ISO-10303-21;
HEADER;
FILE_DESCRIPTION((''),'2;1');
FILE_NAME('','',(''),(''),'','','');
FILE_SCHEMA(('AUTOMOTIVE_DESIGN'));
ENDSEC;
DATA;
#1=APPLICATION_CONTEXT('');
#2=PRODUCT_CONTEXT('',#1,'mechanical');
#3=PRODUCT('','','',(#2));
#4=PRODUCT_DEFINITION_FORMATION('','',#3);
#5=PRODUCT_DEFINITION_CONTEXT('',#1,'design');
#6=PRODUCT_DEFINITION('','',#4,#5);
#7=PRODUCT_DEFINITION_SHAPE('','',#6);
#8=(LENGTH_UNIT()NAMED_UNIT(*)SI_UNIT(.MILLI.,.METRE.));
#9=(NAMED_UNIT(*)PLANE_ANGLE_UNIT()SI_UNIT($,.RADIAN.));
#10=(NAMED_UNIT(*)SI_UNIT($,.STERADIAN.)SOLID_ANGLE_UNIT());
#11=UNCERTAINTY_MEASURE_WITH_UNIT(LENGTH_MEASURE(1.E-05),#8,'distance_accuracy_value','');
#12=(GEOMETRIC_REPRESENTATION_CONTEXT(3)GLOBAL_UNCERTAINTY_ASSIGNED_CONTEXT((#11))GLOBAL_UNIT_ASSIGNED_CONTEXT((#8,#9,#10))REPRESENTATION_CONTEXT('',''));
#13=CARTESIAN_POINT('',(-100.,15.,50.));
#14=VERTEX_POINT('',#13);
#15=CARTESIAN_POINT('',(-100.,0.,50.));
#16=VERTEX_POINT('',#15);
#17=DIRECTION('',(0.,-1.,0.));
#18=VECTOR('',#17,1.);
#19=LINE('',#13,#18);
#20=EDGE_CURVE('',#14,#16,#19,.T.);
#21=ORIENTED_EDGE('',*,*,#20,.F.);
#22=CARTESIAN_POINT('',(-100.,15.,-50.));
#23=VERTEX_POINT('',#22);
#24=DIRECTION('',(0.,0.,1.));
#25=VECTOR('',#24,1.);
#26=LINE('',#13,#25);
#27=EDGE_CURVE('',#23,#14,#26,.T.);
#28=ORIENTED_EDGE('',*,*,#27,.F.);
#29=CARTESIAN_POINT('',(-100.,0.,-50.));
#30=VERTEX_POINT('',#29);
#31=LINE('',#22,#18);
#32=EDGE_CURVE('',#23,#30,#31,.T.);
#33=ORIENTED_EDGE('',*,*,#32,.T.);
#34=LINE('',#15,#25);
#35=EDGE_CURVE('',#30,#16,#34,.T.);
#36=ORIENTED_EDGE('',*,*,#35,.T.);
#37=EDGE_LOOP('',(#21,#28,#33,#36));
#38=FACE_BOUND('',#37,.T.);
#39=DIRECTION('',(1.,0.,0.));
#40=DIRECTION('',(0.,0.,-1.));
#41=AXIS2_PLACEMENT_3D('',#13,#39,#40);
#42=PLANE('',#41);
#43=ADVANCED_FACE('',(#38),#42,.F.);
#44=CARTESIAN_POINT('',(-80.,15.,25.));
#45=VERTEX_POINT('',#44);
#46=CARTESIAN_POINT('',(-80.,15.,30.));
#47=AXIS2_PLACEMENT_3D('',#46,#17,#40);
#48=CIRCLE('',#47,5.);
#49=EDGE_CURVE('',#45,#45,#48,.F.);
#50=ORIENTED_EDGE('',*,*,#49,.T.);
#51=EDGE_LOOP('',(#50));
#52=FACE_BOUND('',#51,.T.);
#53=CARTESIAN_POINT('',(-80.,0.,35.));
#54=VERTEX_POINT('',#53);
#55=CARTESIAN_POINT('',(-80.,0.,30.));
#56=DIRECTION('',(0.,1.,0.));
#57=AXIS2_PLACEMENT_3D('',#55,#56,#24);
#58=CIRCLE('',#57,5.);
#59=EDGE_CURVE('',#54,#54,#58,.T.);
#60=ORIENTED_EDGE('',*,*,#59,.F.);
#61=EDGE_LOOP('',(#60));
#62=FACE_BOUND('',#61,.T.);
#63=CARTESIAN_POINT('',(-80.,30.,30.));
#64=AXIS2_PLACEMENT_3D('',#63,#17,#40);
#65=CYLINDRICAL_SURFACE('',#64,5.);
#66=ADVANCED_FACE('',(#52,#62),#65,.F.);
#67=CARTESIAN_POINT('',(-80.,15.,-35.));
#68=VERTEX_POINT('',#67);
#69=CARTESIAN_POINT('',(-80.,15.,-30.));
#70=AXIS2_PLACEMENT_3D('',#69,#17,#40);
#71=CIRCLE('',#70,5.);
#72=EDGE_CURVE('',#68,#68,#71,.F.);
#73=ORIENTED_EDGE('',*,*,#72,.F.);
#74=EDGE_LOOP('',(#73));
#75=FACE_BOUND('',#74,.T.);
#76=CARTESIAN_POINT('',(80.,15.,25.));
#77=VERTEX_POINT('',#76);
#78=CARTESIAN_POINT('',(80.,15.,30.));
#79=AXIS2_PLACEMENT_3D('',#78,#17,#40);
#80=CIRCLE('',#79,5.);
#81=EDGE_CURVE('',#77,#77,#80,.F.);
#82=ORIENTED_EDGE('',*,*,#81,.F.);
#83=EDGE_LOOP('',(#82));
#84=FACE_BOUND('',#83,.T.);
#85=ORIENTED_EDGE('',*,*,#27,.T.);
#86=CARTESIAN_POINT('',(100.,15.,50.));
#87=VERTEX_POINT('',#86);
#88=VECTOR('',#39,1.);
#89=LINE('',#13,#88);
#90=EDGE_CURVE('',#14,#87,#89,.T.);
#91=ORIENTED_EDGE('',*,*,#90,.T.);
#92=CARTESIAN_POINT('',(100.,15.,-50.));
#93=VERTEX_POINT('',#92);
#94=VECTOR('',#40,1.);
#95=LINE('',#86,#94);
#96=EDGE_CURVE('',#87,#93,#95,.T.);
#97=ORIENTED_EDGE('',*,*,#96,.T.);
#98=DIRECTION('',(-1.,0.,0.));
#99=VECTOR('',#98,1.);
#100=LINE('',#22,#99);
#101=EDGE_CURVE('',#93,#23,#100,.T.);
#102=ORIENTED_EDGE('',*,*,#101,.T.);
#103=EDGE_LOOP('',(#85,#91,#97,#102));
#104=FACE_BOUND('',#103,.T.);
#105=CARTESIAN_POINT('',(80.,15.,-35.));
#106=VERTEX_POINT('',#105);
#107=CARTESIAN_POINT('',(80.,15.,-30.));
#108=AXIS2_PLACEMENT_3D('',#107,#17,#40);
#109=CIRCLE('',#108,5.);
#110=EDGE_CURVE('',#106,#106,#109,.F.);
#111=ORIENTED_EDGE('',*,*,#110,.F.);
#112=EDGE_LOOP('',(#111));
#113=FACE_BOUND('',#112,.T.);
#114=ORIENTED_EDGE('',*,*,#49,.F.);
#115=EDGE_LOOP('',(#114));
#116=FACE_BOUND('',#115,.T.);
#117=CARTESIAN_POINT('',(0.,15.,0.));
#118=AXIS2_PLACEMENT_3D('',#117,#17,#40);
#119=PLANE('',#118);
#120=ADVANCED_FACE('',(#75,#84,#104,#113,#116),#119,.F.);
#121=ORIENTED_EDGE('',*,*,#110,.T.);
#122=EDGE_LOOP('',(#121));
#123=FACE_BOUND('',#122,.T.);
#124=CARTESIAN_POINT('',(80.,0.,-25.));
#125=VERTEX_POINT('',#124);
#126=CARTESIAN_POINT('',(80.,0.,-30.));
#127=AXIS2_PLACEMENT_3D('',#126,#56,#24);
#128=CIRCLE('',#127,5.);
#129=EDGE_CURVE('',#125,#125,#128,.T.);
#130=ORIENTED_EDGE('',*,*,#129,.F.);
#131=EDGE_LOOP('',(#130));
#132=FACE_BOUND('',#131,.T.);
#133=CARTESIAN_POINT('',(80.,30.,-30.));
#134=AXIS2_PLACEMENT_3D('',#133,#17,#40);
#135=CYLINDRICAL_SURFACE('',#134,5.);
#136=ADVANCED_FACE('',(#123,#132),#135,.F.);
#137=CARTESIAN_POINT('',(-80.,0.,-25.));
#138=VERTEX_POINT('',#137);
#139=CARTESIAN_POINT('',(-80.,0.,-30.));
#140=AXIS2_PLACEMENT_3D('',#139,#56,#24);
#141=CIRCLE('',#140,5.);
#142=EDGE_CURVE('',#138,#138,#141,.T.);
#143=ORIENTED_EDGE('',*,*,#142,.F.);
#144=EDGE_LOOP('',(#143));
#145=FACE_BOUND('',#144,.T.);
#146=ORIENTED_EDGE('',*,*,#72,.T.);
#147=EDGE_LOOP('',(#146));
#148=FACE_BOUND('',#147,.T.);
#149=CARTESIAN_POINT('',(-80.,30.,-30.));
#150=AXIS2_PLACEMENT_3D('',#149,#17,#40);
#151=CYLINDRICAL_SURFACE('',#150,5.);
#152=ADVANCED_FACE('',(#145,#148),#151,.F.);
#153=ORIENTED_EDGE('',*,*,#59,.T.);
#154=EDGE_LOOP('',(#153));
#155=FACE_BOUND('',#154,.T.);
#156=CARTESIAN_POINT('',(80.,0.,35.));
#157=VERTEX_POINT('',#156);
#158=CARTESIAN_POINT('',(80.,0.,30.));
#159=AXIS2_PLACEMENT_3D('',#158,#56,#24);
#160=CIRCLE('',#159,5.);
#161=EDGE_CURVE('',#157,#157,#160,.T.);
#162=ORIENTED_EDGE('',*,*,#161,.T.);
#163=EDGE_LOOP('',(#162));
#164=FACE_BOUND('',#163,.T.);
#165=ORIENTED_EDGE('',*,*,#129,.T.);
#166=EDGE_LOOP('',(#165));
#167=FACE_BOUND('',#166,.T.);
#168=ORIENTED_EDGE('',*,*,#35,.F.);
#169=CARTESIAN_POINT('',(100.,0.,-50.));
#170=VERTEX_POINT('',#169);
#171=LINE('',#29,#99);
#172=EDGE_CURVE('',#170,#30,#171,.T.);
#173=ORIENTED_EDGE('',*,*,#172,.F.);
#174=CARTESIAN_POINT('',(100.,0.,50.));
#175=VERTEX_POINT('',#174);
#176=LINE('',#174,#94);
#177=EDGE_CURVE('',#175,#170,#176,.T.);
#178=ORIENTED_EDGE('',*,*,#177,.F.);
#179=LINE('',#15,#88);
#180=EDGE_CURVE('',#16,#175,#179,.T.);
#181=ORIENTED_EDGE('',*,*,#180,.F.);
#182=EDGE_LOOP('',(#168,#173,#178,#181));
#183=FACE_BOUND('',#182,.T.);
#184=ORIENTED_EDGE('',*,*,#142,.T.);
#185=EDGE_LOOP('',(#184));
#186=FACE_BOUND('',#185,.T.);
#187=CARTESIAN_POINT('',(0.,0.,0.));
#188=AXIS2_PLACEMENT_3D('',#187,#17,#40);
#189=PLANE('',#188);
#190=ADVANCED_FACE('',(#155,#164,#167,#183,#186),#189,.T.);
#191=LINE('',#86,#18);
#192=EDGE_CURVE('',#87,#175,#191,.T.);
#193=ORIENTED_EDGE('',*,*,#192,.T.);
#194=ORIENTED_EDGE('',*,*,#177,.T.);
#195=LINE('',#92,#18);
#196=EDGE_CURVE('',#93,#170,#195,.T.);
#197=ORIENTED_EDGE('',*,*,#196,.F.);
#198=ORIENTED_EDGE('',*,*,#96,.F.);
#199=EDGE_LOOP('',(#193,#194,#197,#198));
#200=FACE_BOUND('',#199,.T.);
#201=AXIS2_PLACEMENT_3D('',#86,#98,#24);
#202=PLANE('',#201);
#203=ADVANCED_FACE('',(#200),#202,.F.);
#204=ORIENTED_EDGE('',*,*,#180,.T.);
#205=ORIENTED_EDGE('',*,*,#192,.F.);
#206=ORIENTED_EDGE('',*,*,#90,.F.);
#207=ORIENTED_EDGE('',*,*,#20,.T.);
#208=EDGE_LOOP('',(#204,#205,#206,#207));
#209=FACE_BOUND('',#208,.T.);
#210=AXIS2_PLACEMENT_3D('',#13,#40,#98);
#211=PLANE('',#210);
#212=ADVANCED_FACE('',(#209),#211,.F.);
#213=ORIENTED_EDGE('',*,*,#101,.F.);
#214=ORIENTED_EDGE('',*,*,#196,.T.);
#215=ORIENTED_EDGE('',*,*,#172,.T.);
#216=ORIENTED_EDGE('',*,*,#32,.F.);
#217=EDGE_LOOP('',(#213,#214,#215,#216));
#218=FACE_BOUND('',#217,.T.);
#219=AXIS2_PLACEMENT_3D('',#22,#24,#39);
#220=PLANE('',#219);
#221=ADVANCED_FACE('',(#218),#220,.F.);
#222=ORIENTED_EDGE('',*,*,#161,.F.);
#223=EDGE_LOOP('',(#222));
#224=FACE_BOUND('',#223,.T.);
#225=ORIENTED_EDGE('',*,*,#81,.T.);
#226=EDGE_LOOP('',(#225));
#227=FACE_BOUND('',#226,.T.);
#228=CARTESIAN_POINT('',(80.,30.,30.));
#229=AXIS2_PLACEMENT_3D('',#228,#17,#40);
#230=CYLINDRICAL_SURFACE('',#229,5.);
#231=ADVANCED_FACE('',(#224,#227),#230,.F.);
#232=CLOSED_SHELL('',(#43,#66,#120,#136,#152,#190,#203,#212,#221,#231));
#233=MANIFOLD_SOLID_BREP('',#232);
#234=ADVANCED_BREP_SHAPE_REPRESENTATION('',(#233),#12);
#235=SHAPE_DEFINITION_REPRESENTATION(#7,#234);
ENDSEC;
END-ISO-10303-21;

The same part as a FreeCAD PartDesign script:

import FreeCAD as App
import Part
import Sketcher

V = App.Vector
Q = App.Units.Quantity


def add_polygon(sketch, points):
    """Adds a closed chain of lines whose ends are joined by coincident constraints."""
    first, n = sketch.GeometryCount, len(points)
    for a, b in zip(points, points[1:] + points[:1]):
        sketch.addGeometry(Part.LineSegment(App.Vector(*a, 0), App.Vector(*b, 0)), False)
    for i in range(n):
        sketch.addConstraint(Sketcher.Constraint("Coincident", first + i, 2, first + (i + 1) % n, 1))

doc = App.newDocument("Part")
body = doc.addObject("PartDesign::Body", "Body")

# Sketch on XZ plane
sketch1 = body.newObject("Sketcher::SketchObject", "Sketch")
sketch1.AttachmentSupport = (doc.getObject("XZ_Plane"), [""])
sketch1.MapMode = "FlatFace"
add_polygon(sketch1, [(-100, -50), (-100, 50), (100, 50), (100, -50)])  # lines 0-3
sketch1.addConstraint(Sketcher.Constraint("Vertical", 0))
sketch1.addConstraint(Sketcher.Constraint("Horizontal", 1))
sketch1.addConstraint(Sketcher.Constraint("Vertical", 2))
sketch1.addConstraint(Sketcher.Constraint("Horizontal", 3))
sketch1.addConstraint(Sketcher.Constraint("Symmetric", 0, 2, 2, 2, -1, 1))
sketch1.addConstraint(Sketcher.Constraint("DistanceX", 1, 1, 1, 2, Q("200 mm")))
sketch1.addConstraint(Sketcher.Constraint("DistanceY", 0, 1, 0, 2, Q("100 mm")))
pad1 = body.newObject("PartDesign::Pad", "Pad")
pad1.Profile = sketch1
pad1.Length = 15
pad1.Reversed = True

# Sketch on XZ plane
sketch2 = body.newObject("Sketcher::SketchObject", "Sketch001")
sketch2.AttachmentSupport = (doc.getObject("XZ_Plane"), [""])
sketch2.MapMode = "FlatFace"
sketch2.addGeometry(Part.Circle(V(-80, 30, 0), V(0, 0, 1), 5), False)
sketch2.addGeometry(Part.Circle(V(80, 30, 0), V(0, 0, 1), 5), False)
sketch2.addGeometry(Part.Circle(V(-80, -30, 0), V(0, 0, 1), 5), False)
sketch2.addConstraint(Sketcher.Constraint("Equal", 0, 1))
sketch2.addConstraint(Sketcher.Constraint("Equal", 1, 2))
sketch2.addConstraint(Sketcher.Constraint("Symmetric", 1, 3, 2, 3, -1, 1))
sketch2.addConstraint(Sketcher.Constraint("Symmetric", 0, 3, 1, 3, -2))
sketch2.addConstraint(Sketcher.Constraint("Diameter", 0, Q("10 mm")))
sketch2.addConstraint(Sketcher.Constraint("DistanceX", 0, 3, -1, 1, Q("80 mm")))
sketch2.addConstraint(Sketcher.Constraint("DistanceY", -1, 1, 0, 3, Q("30 mm")))
pocket1 = body.newObject("PartDesign::Pocket", "Pocket")
pocket1.Profile = sketch2
pocket1.Length = 30

# Sketch on XZ plane
sketch3 = body.newObject("Sketcher::SketchObject", "Sketch002")
sketch3.AttachmentSupport = (doc.getObject("XZ_Plane"), [""])
sketch3.MapMode = "FlatFace"
sketch3.addGeometry(Part.Circle(V(80, -30, 0), V(0, 0, 1), 5), False)
sketch3.addConstraint(Sketcher.Constraint("Diameter", 0, Q("10 mm")))
sketch3.addConstraint(Sketcher.Constraint("DistanceX", -1, 1, 0, 3, Q("80 mm")))
sketch3.addConstraint(Sketcher.Constraint("DistanceY", 0, 3, -1, 1, Q("30 mm")))
pocket2 = body.newObject("PartDesign::Pocket", "Pocket001")
pocket2.Profile = sketch3
pocket2.Length = 30

doc.recompute()
